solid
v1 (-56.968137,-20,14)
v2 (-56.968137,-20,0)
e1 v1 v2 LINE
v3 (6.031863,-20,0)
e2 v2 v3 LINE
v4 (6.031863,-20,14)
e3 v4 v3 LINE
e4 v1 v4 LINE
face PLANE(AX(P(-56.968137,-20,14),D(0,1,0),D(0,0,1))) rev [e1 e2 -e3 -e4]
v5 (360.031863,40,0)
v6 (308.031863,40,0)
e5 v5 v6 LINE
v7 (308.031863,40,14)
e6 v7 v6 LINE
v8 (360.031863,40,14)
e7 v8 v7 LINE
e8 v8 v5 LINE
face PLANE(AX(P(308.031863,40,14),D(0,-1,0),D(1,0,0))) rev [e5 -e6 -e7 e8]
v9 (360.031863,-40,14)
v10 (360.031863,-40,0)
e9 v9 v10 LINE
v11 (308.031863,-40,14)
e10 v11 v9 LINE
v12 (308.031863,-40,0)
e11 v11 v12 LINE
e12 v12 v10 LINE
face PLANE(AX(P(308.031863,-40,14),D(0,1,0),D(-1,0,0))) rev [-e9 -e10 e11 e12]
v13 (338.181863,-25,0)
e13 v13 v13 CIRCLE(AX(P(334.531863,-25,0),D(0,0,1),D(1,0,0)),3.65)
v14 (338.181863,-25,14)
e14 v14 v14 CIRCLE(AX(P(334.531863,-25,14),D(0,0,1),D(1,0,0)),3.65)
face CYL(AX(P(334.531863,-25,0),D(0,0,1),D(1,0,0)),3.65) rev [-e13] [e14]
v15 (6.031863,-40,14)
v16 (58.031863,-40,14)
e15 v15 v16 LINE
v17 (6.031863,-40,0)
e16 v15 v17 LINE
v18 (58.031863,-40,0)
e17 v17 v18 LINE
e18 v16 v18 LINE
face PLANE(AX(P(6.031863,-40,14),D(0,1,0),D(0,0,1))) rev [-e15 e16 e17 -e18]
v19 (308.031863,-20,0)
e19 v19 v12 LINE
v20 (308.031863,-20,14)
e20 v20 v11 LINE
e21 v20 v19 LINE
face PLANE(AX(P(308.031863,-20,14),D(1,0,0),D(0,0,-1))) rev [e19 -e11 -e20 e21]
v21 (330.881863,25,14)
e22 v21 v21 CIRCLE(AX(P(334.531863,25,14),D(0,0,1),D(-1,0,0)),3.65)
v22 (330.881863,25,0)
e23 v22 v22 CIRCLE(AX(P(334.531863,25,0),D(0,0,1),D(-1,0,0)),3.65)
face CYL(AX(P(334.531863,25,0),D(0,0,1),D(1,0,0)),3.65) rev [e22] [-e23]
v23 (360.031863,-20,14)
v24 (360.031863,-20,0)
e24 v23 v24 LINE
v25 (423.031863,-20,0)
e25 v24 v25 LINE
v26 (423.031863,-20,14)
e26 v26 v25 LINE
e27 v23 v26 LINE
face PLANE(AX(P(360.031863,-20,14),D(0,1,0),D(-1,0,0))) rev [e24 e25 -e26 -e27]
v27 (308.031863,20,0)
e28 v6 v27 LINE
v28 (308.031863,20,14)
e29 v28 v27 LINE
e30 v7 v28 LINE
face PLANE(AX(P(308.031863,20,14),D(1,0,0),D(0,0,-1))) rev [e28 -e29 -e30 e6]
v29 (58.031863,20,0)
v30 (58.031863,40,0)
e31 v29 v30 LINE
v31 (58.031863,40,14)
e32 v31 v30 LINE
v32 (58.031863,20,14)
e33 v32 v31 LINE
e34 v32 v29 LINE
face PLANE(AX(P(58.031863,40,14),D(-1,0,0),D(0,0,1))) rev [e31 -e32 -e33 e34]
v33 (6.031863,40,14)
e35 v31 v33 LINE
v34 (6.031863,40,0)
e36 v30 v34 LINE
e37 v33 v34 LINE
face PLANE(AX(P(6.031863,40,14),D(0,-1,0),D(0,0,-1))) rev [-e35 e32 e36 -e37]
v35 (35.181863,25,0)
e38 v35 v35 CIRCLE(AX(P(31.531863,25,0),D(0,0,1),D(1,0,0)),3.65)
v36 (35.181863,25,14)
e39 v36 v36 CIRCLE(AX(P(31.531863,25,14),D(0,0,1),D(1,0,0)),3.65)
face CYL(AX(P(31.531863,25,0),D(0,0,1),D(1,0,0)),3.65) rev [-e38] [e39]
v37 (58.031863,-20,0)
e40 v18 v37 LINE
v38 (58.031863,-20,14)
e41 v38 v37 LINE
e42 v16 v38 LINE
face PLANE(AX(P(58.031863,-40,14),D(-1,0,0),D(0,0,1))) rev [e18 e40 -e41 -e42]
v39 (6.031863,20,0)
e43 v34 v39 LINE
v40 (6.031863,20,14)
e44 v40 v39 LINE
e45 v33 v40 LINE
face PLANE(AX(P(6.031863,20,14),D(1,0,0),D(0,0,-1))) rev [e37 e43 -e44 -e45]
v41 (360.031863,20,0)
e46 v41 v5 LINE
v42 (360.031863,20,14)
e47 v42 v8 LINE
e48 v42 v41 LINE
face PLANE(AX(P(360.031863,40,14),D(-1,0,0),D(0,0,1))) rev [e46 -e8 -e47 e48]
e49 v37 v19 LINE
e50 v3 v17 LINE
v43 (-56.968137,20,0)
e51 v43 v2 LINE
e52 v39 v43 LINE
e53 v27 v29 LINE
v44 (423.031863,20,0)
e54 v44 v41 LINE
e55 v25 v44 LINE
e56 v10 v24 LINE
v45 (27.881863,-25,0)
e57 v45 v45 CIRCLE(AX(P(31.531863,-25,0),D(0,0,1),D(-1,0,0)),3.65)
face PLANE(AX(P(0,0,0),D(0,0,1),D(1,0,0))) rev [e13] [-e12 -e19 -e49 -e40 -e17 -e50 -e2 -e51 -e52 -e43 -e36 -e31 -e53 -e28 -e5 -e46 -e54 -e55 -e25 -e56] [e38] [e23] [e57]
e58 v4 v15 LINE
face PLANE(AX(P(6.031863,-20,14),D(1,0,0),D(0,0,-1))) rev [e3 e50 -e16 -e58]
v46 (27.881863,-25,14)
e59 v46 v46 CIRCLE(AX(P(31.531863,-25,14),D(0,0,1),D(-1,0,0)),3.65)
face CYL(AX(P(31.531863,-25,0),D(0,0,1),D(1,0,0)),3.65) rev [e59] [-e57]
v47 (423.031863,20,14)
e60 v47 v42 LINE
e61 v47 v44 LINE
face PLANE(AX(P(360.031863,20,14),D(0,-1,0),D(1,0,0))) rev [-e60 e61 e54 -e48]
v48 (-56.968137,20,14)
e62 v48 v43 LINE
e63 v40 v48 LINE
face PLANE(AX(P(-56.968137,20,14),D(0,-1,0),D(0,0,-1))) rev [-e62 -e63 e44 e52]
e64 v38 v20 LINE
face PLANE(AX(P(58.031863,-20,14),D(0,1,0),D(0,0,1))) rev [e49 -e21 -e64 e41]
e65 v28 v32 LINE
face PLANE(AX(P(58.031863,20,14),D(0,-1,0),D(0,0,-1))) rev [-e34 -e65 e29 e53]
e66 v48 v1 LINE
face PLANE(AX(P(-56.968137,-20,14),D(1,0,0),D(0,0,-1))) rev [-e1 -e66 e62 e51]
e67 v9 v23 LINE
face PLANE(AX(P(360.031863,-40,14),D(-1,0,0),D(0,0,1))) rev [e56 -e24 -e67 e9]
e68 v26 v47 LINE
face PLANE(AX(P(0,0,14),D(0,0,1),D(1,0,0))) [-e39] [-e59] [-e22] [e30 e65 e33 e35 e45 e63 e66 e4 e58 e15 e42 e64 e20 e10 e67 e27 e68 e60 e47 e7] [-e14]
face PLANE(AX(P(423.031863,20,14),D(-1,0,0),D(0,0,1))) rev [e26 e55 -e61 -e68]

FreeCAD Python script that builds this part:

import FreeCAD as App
import Part
import Sketcher
from FreeCAD import Vector

doc = App.newDocument("Part")
params = doc.addObject("Spreadsheet::Sheet", "Params")
for row, (alias, value) in enumerate([
    ("sketch1_width", "63 mm"),
    ("sketch1_width2", "52 mm"),
    ("sketch1_width3", "250 mm"),
    ("sketch1_height", "40 mm"),
    ("sketch1_height2", "20 mm"),
    ("pad1_length", "14 mm"),
    ("sketch2_diameter", "7.3 mm"),
    ("pocket1_length", "14 mm"),
], start=1):
    params.set(f"A{row}", alias)
    params.set(f"B{row}", "=" + value)
    params.setAlias(f"B{row}", alias)

body = doc.addObject("PartDesign::Body", "Body")

# Sketch on XY plane
sketch1 = body.newObject("Sketcher::SketchObject", "Sketch")
sketch1.AttachmentSupport = (doc.getObject("XY_Plane"), [""])
sketch1.MapMode = "FlatFace"
sketch1.addGeometry([
    Part.LineSegment(Vector(-57, 20, 0), Vector(-57, -20, 0)),  # 0
    Part.LineSegment(Vector(-57, -20, 0), Vector(6, -20, 0)),  # 1
    Part.LineSegment(Vector(6, -20, 0), Vector(6, -40, 0)),  # 2
    Part.LineSegment(Vector(6, -40, 0), Vector(58, -40, 0)),  # 3
    Part.LineSegment(Vector(58, -40, 0), Vector(58, -20, 0)),  # 4
    Part.LineSegment(Vector(58, -20, 0), Vector(308, -20, 0)),  # 5
    Part.LineSegment(Vector(308, -20, 0), Vector(308, -40, 0)),  # 6
    Part.LineSegment(Vector(308, -40, 0), Vector(360, -40, 0)),  # 7
    Part.LineSegment(Vector(360, -40, 0), Vector(360, -20, 0)),  # 8
    Part.LineSegment(Vector(360, -20, 0), Vector(423, -20, 0)),  # 9
    Part.LineSegment(Vector(423, -20, 0), Vector(423, 20, 0)),  # 10
    Part.LineSegment(Vector(423, 20, 0), Vector(360, 20, 0)),  # 11
    Part.LineSegment(Vector(360, 20, 0), Vector(360, 40, 0)),  # 12
    Part.LineSegment(Vector(360, 40, 0), Vector(308, 40, 0)),  # 13
    Part.LineSegment(Vector(308, 40, 0), Vector(308, 20, 0)),  # 14
    Part.LineSegment(Vector(308, 20, 0), Vector(58, 20, 0)),  # 15
    Part.LineSegment(Vector(58, 20, 0), Vector(58, 40, 0)),  # 16
    Part.LineSegment(Vector(58, 40, 0), Vector(6, 40, 0)),  # 17
    Part.LineSegment(Vector(6, 40, 0), Vector(6, 20, 0)),  # 18
    Part.LineSegment(Vector(6, 20, 0), Vector(-57, 20, 0)),  # 19
], False)
sketch1.addConstraint([
    Sketcher.Constraint("Coincident", 0, 2, 1, 1),
    Sketcher.Constraint("Coincident", 1, 2, 2, 1),
    Sketcher.Constraint("Coincident", 2, 2, 3, 1),
    Sketcher.Constraint("Coincident", 3, 2, 4, 1),
    Sketcher.Constraint("Coincident", 4, 2, 5, 1),
    Sketcher.Constraint("Coincident", 5, 2, 6, 1),
    Sketcher.Constraint("Coincident", 6, 2, 7, 1),
    Sketcher.Constraint("Coincident", 7, 2, 8, 1),
    Sketcher.Constraint("Coincident", 8, 2, 9, 1),
    Sketcher.Constraint("Coincident", 9, 2, 10, 1),
    Sketcher.Constraint("Coincident", 10, 2, 11, 1),
    Sketcher.Constraint("Coincident", 11, 2, 12, 1),
    Sketcher.Constraint("Coincident", 12, 2, 13, 1),
    Sketcher.Constraint("Coincident", 13, 2, 14, 1),
    Sketcher.Constraint("Coincident", 14, 2, 15, 1),
    Sketcher.Constraint("Coincident", 15, 2, 16, 1),
    Sketcher.Constraint("Coincident", 16, 2, 17, 1),
    Sketcher.Constraint("Coincident", 17, 2, 18, 1),
    Sketcher.Constraint("Coincident", 18, 2, 19, 1),
    Sketcher.Constraint("Coincident", 19, 2, 0, 1),
    Sketcher.Constraint("Vertical", 0),
    Sketcher.Constraint("Horizontal", 1),
    Sketcher.Constraint("Vertical", 2),
    Sketcher.Constraint("Horizontal", 3),
    Sketcher.Constraint("Vertical", 4),
    Sketcher.Constraint("Horizontal", 5),
    Sketcher.Constraint("Vertical", 6),
    Sketcher.Constraint("Horizontal", 7),
    Sketcher.Constraint("Vertical", 8),
    Sketcher.Constraint("Horizontal", 9),
    Sketcher.Constraint("Vertical", 10),
    Sketcher.Constraint("Horizontal", 11),
    Sketcher.Constraint("Vertical", 12),
    Sketcher.Constraint("Horizontal", 13),
    Sketcher.Constraint("Vertical", 14),
    Sketcher.Constraint("Horizontal", 15),
    Sketcher.Constraint("Vertical", 16),
    Sketcher.Constraint("Horizontal", 17),
    Sketcher.Constraint("Vertical", 18),
    Sketcher.Constraint("Horizontal", 19),
    Sketcher.Constraint("Symmetric", 8, 2, 11, 2, -1),
    Sketcher.Constraint("Symmetric", 6, 2, 13, 2, -1),
    Sketcher.Constraint("Symmetric", 4, 2, 15, 2, -1),
    Sketcher.Constraint("Symmetric", 2, 2, 17, 2, -1),
    Sketcher.Constraint("Horizontal", 1, 2, 4, 2),
    Sketcher.Constraint("Horizontal", 3, 2, 6, 2),
    Sketcher.Constraint("Horizontal", 5, 2, 8, 2),
    Sketcher.Constraint("Horizontal", 15, 2, 18, 2),
    Sketcher.Constraint("Equal", 3, 7),
    Sketcher.Constraint("Equal", 1, 9),
    Sketcher.Constraint("DistanceX", 1, 1, 1, 2, 63.0),
    Sketcher.Constraint("DistanceX", 3, 1, 3, 2, 52.0),
    Sketcher.Constraint("DistanceX", 5, 1, 5, 2, 250.0),
    Sketcher.Constraint("DistanceY", 0, 2, 0, 1, 40.0),
    Sketcher.Constraint("DistanceY", 2, 2, 2, 1, 20.0),
    Sketcher.Constraint("DistanceX", 0, 2, -1, 1, 56.968137),
])
sketch1.setExpression("Constraints[50]", "Params.sketch1_width")
sketch1.setExpression("Constraints[51]", "Params.sketch1_width2")
sketch1.setExpression("Constraints[52]", "Params.sketch1_width3")
sketch1.setExpression("Constraints[53]", "Params.sketch1_height")
sketch1.setExpression("Constraints[54]", "Params.sketch1_height2")
pad1 = body.newObject("PartDesign::Pad", "Pad")
pad1.Profile = sketch1
pad1.setExpression("Length", "Params.pad1_length")

# Sketch on XY plane
sketch2 = body.newObject("Sketcher::SketchObject", "Sketch001")
sketch2.AttachmentSupport = (doc.getObject("XY_Plane"), [""])
sketch2.MapMode = "FlatFace"
sketch2.AttachmentOffset = App.Placement(Vector(0, 0, 14), App.Rotation())
sketch2.addGeometry([
    Part.Circle(Vector(31.5, 25, 0), Vector(0, 0, 1), 3.6),
    Part.Circle(Vector(31.5, -25, 0), Vector(0, 0, 1), 3.6),
    Part.Circle(Vector(334.5, -25, 0), Vector(0, 0, 1), 3.6),
    Part.Circle(Vector(334.5, 25, 0), Vector(0, 0, 1), 3.6),
], False)
sketch2.addConstraint([
    Sketcher.Constraint("Equal", 0, 1),
    Sketcher.Constraint("Equal", 1, 2),
    Sketcher.Constraint("Equal", 2, 3),
    Sketcher.Constraint("Symmetric", 0, 3, 1, 3, -1),
    Sketcher.Constraint("Symmetric", 2, 3, 3, 3, -1),
    Sketcher.Constraint("Horizontal", 1, 3, 2, 3),
    Sketcher.Constraint("Diameter", 0, 7.3),
    Sketcher.Constraint("DistanceY", -1, 1, 0, 3, 25.0),
    Sketcher.Constraint("DistanceX", 1, 3, 2, 3, 303.0),
    Sketcher.Constraint("DistanceX", -1, 1, 0, 3, 31.531863),
])
sketch2.setExpression("Constraints[6]", "Params.sketch2_diameter")
pocket1 = body.newObject("PartDesign::Pocket", "Pocket")
pocket1.Profile = sketch2
pocket1.setExpression("Length", "Params.pocket1_length")

doc.recompute()
